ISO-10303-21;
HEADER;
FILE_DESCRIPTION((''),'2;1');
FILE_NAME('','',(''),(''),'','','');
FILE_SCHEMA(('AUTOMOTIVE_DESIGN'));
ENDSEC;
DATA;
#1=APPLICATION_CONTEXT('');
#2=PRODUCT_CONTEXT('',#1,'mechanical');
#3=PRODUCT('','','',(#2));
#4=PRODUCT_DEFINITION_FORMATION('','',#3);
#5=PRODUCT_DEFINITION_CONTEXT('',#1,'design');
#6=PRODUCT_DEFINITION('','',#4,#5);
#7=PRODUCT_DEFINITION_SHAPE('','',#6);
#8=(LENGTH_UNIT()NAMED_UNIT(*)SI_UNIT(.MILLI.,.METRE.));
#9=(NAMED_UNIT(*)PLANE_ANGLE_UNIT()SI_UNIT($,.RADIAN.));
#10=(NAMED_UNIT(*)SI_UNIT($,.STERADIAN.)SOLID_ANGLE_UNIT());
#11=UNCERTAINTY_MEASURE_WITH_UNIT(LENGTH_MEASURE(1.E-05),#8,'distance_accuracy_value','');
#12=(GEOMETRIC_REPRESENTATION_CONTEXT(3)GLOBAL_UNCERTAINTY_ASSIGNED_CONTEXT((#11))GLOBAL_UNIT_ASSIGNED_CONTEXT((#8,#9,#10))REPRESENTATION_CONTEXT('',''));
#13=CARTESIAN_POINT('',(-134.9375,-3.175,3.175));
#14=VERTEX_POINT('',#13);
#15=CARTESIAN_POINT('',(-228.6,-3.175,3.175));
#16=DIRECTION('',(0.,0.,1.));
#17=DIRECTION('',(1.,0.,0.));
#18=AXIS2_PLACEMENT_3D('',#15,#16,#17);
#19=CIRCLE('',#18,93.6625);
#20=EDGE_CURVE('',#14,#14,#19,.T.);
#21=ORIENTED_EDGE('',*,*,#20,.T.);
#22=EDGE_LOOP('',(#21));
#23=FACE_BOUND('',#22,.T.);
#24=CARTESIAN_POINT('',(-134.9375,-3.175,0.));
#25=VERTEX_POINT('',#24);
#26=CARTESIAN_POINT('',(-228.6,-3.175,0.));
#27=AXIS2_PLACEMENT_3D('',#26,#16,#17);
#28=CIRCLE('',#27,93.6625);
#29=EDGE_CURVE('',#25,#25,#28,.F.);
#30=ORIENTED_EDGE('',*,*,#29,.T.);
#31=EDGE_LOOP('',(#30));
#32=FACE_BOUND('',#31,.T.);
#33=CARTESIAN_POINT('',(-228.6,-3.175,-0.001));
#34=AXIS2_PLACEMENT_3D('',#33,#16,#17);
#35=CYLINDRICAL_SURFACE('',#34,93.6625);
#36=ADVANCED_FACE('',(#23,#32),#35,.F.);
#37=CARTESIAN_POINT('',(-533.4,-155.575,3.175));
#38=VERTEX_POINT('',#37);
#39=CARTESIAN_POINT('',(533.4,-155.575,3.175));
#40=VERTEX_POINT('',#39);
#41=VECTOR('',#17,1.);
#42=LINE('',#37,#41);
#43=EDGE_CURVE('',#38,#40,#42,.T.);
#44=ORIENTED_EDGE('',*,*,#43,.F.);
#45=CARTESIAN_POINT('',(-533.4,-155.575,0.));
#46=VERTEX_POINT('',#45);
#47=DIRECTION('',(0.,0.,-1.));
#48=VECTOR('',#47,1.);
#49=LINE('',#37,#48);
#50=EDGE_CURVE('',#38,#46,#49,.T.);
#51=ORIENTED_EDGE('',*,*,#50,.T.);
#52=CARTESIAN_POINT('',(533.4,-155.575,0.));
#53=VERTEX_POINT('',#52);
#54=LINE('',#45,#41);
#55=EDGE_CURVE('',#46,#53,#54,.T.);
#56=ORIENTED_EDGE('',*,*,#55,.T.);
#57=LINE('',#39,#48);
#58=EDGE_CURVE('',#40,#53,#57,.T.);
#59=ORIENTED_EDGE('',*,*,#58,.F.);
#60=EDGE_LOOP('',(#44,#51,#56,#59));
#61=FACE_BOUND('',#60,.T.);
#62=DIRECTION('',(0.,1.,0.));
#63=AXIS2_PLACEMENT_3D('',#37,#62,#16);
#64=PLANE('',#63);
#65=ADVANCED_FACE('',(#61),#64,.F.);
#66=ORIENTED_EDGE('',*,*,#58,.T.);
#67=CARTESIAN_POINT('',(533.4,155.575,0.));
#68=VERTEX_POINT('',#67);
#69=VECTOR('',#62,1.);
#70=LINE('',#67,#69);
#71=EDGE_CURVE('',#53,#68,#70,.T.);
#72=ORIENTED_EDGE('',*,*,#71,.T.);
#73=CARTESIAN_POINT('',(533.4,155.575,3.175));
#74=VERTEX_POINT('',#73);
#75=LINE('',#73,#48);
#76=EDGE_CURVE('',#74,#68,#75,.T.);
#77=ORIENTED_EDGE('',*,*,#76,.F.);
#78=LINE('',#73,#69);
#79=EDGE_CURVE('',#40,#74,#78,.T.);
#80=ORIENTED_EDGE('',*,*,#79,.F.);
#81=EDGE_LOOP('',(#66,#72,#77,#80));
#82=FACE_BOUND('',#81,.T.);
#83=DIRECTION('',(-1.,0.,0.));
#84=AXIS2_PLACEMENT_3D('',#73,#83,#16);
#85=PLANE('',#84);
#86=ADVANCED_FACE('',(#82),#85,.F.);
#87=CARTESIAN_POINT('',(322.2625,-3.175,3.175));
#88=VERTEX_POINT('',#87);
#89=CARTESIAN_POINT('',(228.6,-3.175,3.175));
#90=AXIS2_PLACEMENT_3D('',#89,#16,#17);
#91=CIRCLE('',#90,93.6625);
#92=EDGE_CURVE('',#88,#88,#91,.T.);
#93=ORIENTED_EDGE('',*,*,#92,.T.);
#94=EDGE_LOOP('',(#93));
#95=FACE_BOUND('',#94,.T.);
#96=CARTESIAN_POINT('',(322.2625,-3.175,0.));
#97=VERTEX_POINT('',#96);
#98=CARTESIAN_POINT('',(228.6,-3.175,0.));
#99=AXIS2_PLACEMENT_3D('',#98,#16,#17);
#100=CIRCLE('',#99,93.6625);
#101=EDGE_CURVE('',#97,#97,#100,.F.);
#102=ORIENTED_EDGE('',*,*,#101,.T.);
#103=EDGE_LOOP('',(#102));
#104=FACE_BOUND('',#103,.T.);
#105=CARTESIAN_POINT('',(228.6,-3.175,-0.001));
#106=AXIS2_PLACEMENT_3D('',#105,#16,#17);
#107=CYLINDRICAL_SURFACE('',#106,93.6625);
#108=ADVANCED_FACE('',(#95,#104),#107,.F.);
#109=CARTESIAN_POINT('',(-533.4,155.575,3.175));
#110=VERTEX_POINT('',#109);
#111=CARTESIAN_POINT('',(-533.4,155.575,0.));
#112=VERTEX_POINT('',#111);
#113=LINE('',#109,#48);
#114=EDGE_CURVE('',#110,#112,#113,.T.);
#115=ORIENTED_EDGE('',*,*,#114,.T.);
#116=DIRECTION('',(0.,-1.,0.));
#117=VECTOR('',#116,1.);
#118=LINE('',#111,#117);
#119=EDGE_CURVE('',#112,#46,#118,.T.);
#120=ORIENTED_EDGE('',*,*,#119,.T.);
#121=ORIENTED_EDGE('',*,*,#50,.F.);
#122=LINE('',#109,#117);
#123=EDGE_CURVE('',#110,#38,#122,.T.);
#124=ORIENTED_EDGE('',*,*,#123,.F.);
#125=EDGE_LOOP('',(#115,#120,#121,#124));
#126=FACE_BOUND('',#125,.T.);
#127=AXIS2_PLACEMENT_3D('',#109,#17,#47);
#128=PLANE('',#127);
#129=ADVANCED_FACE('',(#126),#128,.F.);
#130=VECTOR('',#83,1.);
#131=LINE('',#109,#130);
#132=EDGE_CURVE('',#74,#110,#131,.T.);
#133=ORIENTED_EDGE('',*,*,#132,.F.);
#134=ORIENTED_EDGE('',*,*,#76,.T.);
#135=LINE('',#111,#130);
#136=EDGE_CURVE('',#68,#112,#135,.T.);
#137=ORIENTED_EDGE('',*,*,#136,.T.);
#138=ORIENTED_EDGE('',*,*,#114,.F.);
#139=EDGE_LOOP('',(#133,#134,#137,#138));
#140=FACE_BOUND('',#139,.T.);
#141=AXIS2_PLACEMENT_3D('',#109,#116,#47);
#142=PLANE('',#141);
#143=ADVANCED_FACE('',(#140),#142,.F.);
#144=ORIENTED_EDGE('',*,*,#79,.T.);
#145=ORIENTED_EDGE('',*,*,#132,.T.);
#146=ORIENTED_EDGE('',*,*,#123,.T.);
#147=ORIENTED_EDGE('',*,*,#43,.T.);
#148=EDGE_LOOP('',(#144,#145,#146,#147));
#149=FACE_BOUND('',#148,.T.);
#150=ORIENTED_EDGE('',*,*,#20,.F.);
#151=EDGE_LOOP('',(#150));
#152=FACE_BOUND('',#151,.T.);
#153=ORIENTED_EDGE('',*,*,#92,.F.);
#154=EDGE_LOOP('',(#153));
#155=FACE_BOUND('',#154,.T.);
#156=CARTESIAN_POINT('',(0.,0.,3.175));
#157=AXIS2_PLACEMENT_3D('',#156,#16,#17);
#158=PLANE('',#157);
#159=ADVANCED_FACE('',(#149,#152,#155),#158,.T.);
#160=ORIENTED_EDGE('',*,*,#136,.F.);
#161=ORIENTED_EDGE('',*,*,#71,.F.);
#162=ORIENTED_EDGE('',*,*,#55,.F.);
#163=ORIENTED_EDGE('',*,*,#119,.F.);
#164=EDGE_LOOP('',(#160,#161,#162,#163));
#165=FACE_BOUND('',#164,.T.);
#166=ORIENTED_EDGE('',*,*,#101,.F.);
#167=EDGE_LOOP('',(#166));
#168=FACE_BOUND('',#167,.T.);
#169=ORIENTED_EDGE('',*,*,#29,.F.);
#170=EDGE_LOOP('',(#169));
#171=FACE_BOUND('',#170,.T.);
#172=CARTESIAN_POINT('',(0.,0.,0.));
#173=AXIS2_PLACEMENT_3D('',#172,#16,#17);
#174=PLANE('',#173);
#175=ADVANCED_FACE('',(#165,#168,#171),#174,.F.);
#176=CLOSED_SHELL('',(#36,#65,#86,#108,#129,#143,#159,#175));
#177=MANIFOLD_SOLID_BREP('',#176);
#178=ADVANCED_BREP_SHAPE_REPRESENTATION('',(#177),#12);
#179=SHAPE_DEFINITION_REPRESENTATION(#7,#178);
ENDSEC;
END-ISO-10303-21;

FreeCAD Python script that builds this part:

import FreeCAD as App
import Part
import Sketcher

V = App.Vector
Q = App.Units.Quantity


def add_polygon(sketch, points):
    """Adds a closed chain of lines whose ends are joined by coincident constraints."""
    first, n = sketch.GeometryCount, len(points)
    for a, b in zip(points, points[1:] + points[:1]):
        sketch.addGeometry(Part.LineSegment(App.Vector(*a, 0), App.Vector(*b, 0)), False)
    for i in range(n):
        sketch.addConstraint(Sketcher.Constraint("Coincident", first + i, 2, first + (i + 1) % n, 1))

doc = App.newDocument("Part")
params = doc.addObject("Spreadsheet::Sheet", "Params")
for row, (alias, value) in enumerate([
    ("sketch1_width", "42 in"),
    ("sketch1_height", "12.25 in"),
    ("pad1_length", "0.125 in"),
    ("sketch2_diameter", "7.375 in"),
    ("sketch3_diameter", "7.375 in"),
], start=1):
    params.set(f"A{row}", alias)
    params.set(f"B{row}", "=" + value)
    params.setAlias(f"B{row}", alias)

body = doc.addObject("PartDesign::Body", "Body")

# Sketch on XY plane
sketch1 = doc.addObject("Sketcher::SketchObject", "Sketch")
body.addObject(sketch1)
sketch1.AttachmentSupport = (doc.XY_Plane, [""])
sketch1.MapMode = "FlatFace"
add_polygon(sketch1, [(-533, 156), (-533, -156), (533, -156), (533, 156)])  # lines 0-3
sketch1.addConstraint([
    Sketcher.Constraint("Vertical", 0),
    Sketcher.Constraint("Horizontal", 1),
    Sketcher.Constraint("Vertical", 2),
    Sketcher.Constraint("Horizontal", 3),
    Sketcher.Constraint("Symmetric", 0, 2, 2, 2, -1, 1),
    Sketcher.Constraint("DistanceX", 1, 1, 1, 2, Q("42 in")),
    Sketcher.Constraint("DistanceY", 0, 2, 0, 1, Q("12.25 in")),
])
sketch1.setExpression("Constraints[9]", "Params.sketch1_width")
sketch1.setExpression("Constraints[10]", "Params.sketch1_height")
pad1 = doc.addObject("PartDesign::Pad", "Pad")
body.addObject(pad1)
pad1.Profile = sketch1
pad1.setExpression("Length", "Params.pad1_length")

# Sketch on XY plane
sketch2 = doc.addObject("Sketcher::SketchObject", "Sketch001")
body.addObject(sketch2)
sketch2.AttachmentSupport = (doc.XY_Plane, [""])
sketch2.MapMode = "FlatFace"
sketch2.AttachmentOffset = App.Placement(V(0, 0, 0.125 * 25.4), App.Rotation())
sketch2.addGeometry(Part.Circle(V(229, -3, 0), V(0, 0, 1), 94), False)
sketch2.addConstraint([
    Sketcher.Constraint("Diameter", 0, Q("7.375 in")),
    Sketcher.Constraint("DistanceX", -1, 1, 0, 3, Q("9 in")),
    Sketcher.Constraint("DistanceY", 0, 3, -1, 1, Q("0.125 in")),
])
sketch2.setExpression("Constraints[0]", "Params.sketch2_diameter")
pocket1 = doc.addObject("PartDesign::Pocket", "Pocket")
body.addObject(pocket1)
pocket1.Profile = sketch2
pocket1.Type = "UpToFirst"

# Sketch on XY plane
sketch3 = doc.addObject("Sketcher::SketchObject", "Sketch002")
body.addObject(sketch3)
sketch3.AttachmentSupport = (doc.XY_Plane, [""])
sketch3.MapMode = "FlatFace"
sketch3.AttachmentOffset = App.Placement(V(0, 0, 0.125 * 25.4), App.Rotation())
sketch3.addGeometry(Part.Circle(V(-229, -3, 0), V(0, 0, 1), 94), False)
sketch3.addConstraint([
    Sketcher.Constraint("Diameter", 0, Q("7.375 in")),
    Sketcher.Constraint("DistanceX", 0, 3, -1, 1, Q("9 in")),
    Sketcher.Constraint("DistanceY", 0, 3, -1, 1, Q("0.125 in")),
])
sketch3.setExpression("Constraints[0]", "Params.sketch3_diameter")
pocket2 = doc.addObject("PartDesign::Pocket", "Pocket001")
body.addObject(pocket2)
pocket2.Profile = sketch3
pocket2.Type = "UpToFirst"

doc.recompute()
